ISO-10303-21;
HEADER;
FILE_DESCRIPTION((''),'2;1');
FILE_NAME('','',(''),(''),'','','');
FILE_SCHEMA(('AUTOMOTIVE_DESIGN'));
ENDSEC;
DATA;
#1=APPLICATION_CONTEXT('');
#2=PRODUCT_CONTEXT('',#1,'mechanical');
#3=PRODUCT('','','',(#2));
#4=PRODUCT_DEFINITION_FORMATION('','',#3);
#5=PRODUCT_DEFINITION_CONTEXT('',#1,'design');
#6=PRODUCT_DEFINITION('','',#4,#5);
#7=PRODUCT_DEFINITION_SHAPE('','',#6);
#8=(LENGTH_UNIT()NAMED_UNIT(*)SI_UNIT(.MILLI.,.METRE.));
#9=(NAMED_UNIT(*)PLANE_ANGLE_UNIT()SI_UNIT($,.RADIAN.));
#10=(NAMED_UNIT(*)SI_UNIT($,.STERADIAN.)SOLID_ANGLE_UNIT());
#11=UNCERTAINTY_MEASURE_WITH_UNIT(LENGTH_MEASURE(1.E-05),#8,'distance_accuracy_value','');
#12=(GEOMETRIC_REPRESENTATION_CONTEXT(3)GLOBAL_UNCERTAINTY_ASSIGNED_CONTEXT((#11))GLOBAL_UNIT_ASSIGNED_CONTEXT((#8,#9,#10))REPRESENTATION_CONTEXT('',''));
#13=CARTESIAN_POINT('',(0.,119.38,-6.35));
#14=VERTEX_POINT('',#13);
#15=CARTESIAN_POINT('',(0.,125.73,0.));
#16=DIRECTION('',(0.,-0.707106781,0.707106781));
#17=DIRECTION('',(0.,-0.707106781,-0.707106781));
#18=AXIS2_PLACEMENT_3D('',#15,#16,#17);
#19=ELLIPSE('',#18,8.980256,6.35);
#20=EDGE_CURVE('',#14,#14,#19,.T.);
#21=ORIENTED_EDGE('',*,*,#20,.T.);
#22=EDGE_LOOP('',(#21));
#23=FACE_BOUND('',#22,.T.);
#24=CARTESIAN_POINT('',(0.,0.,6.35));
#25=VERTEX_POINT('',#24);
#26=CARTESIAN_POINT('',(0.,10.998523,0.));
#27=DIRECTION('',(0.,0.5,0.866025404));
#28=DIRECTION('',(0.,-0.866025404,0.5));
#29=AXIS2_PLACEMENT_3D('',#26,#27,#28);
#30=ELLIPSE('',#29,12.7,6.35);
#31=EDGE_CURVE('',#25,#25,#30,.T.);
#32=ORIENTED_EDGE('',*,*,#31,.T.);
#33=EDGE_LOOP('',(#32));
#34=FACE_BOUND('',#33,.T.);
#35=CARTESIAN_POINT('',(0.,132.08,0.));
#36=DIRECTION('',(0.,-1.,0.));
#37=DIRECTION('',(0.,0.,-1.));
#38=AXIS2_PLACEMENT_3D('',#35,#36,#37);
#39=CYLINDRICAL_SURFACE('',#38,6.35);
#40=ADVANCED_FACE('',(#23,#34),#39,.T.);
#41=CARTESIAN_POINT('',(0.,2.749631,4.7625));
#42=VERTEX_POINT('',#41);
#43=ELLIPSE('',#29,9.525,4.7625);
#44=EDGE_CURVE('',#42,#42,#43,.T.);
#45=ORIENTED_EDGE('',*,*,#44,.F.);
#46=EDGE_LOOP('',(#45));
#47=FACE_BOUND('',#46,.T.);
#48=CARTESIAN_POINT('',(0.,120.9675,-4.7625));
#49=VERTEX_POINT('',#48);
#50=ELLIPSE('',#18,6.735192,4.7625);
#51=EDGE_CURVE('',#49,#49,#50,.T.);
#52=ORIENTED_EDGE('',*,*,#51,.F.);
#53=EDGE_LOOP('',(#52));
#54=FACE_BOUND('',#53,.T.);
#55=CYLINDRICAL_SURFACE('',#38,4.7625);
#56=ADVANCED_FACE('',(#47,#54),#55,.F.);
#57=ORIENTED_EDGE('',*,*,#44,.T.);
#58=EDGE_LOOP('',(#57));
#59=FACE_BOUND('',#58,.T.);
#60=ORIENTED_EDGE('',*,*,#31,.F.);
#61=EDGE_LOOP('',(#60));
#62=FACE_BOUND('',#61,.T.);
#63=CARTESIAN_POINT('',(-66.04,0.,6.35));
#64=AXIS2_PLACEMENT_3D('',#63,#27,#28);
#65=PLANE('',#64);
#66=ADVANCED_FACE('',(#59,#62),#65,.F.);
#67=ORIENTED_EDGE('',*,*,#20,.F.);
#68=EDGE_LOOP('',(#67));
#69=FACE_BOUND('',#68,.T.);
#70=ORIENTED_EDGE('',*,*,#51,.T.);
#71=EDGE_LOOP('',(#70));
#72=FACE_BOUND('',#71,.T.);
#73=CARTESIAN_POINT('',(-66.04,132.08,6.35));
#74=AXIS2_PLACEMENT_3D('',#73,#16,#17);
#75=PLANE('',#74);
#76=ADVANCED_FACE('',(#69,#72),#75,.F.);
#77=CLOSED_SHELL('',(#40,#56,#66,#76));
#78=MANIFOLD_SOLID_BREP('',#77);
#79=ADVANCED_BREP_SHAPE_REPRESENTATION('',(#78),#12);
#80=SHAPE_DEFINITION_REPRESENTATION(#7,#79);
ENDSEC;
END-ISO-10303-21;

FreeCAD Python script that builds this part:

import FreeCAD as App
import Part
import Sketcher

V = App.Vector
Q = App.Units.Quantity

doc = App.newDocument("Part")
body = doc.addObject("PartDesign::Body", "Body")

# Sketch on XZ plane
sketch1 = doc.addObject("Sketcher::SketchObject", "Sketch")
body.addObject(sketch1)
sketch1.AttachmentSupport = (doc.XZ_Plane, [""])
sketch1.MapMode = "FlatFace"
sketch1.addGeometry([
    Part.Circle(V(0, 0, 0), V(0, 0, 1), 6.3),
    Part.Circle(V(0, 0, 0), V(0, 0, 1), 4.8),
], False)
sketch1.addConstraint([
    Sketcher.Constraint("Coincident", 0, 3, -1, 1),
    Sketcher.Constraint("Coincident", 1, 3, -1, 1),
    Sketcher.Constraint("Diameter", 0, Q("0.5 in")),
    Sketcher.Constraint("Diameter", 1, Q("0.375 in")),
])
pad1 = doc.addObject("PartDesign::Pad", "Pad")
body.addObject(pad1)
pad1.Profile = sketch1
pad1.Length = Q("5.2 in")
pad1.Reversed = True

# Sketch on YZ plane
sketch2 = doc.addObject("Sketcher::SketchObject", "Sketch001")
body.addObject(sketch2)
sketch2.AttachmentSupport = (doc.YZ_Plane, [""])
sketch2.MapMode = "FlatFace"
sketch2.addGeometry([
    Part.LineSegment(V(132, 6, 0), V(119, -6, 0)),  # 0
    Part.LineSegment(V(119, -6, 0), V(132, -6, 0)),  # 1
    Part.LineSegment(V(132, -6, 0), V(132, 6, 0)),  # 2
    Part.LineSegment(V(22, -6, 0), V(0, 6, 0)),  # 3
    Part.LineSegment(V(0, 6, 0), V(0, -6, 0)),  # 4
    Part.LineSegment(V(0, -6, 0), V(22, -6, 0)),  # 5
], False)
sketch2.addConstraint([
    Sketcher.Constraint("Coincident", 0, 2, 1, 1),
    Sketcher.Constraint("Coincident", 1, 2, 2, 1),
    Sketcher.Constraint("Coincident", 2, 2, 0, 1),
    Sketcher.Constraint("Coincident", 3, 2, 4, 1),
    Sketcher.Constraint("Coincident", 4, 2, 5, 1),
    Sketcher.Constraint("Coincident", 5, 2, 3, 1),
    Sketcher.Constraint("Horizontal", 1),
    Sketcher.Constraint("Vertical", 2),
    Sketcher.Constraint("Vertical", 4),
    Sketcher.Constraint("Horizontal", 5),
    Sketcher.Constraint("Symmetric", 3, 2, 4, 2, -1, 1),
    Sketcher.Constraint("Horizontal", 2, 2, 3, 2),
    Sketcher.Constraint("Horizontal", 1, 2, 4, 2),
    Sketcher.Constraint("Equal", 1, 2),
    Sketcher.Constraint("Distance", 3, Q("1 in")),
    Sketcher.Constraint("DistanceX", 1, 1, 1, 2, Q("0.5 in")),
    Sketcher.Constraint("DistanceX", -1, 1, 0, 2, Q("4.7 in")),
])
pocket1 = doc.addObject("PartDesign::Pocket", "Pocket")
body.addObject(pocket1)
pocket1.Profile = sketch2
pocket1.Length = Q("5.2 in")
pocket1.Midplane = True

doc.recompute()
